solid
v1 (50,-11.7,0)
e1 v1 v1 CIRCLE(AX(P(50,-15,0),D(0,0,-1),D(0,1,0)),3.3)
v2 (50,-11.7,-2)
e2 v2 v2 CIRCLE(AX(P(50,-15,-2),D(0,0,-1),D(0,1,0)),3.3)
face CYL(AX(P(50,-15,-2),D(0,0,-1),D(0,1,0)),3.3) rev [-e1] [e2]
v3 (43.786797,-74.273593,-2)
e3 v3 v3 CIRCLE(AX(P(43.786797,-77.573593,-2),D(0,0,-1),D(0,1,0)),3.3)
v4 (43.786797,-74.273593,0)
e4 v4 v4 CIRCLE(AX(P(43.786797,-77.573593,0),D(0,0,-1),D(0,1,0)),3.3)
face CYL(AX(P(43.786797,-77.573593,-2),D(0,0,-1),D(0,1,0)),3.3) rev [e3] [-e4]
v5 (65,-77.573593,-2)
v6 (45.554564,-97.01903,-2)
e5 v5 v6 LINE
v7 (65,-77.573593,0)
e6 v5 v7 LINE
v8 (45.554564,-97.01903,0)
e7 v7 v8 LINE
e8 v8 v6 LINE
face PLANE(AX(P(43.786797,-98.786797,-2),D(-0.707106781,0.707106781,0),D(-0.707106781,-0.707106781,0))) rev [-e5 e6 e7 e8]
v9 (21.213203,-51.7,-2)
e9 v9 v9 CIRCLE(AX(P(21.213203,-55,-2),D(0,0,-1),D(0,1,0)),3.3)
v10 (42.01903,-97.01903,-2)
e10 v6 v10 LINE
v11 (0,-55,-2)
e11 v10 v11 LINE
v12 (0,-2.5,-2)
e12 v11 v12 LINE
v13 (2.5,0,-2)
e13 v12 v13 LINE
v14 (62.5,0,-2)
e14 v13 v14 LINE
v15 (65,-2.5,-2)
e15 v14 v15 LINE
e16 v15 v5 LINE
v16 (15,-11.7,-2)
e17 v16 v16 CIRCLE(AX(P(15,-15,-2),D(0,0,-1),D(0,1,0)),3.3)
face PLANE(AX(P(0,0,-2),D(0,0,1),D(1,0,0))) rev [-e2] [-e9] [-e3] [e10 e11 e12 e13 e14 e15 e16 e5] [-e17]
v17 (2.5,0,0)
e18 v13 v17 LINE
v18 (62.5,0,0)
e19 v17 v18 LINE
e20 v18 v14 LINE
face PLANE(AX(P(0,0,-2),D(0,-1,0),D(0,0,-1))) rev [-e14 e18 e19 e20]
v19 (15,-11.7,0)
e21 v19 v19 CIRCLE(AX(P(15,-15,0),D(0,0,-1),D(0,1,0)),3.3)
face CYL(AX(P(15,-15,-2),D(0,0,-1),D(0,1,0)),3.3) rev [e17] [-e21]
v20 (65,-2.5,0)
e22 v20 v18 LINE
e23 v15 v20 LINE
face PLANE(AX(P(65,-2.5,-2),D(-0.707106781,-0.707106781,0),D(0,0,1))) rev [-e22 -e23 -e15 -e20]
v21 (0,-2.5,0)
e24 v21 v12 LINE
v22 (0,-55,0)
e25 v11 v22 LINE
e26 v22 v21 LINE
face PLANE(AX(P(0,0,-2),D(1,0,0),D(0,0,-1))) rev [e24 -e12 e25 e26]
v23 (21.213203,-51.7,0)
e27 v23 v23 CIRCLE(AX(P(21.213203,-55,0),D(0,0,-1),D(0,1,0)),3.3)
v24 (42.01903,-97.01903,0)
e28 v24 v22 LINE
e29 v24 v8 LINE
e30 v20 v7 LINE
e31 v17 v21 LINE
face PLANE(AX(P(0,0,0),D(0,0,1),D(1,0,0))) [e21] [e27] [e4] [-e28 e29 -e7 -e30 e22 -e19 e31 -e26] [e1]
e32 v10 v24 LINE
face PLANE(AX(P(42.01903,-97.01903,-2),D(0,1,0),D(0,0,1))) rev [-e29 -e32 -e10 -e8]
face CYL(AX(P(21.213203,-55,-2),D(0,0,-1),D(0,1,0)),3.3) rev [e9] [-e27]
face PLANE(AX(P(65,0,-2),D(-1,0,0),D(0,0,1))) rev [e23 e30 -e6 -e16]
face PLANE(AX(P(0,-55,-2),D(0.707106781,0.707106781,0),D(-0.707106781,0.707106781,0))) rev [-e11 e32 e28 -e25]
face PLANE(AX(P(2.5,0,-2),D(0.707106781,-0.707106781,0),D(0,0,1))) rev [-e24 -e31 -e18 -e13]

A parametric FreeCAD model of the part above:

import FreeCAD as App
import Part
import Sketcher
from FreeCAD import Vector
Q = App.Units.Quantity


def edges_at(feature, points):
    """Names of the edges that pass closest to the given points."""
    edges = feature.Shape.Edges
    near = lambda p: min(range(len(edges)), key=lambda i: edges[i].distToShape(Part.Vertex(*p))[0])
    return sorted({f"Edge{near(p) + 1}" for p in points})

doc = App.newDocument("Part")
body = doc.addObject("PartDesign::Body", "Body")

# Sketch on XY plane
sketch1 = body.newObject("Sketcher::SketchObject", "Sketch")
sketch1.AttachmentSupport = (doc.getObject("XY_Plane"), [""])
sketch1.MapMode = "FlatFace"
sketch1.addGeometry([
    Part.LineSegment(Vector(0, 0, 0), Vector(65, 0, 0)),  # 0
    Part.LineSegment(Vector(65, 0, 0), Vector(65, -78, 0)),  # 1
    Part.LineSegment(Vector(65, -78, 0), Vector(44, -99, 0)),  # 2
    Part.LineSegment(Vector(44, -99, 0), Vector(0, -55, 0)),  # 3
    Part.LineSegment(Vector(0, -55, 0), Vector(0, 0, 0)),  # 4
], False)
sketch1.addConstraint([
    Sketcher.Constraint("Coincident", 0, 2, 1, 1),
    Sketcher.Constraint("Coincident", 1, 2, 2, 1),
    Sketcher.Constraint("Coincident", 2, 2, 3, 1),
    Sketcher.Constraint("Coincident", 3, 2, 4, 1),
    Sketcher.Constraint("Coincident", 4, 2, 0, 1),
    Sketcher.Constraint("Horizontal", 0),
    Sketcher.Constraint("Vertical", 1),
    Sketcher.Constraint("Vertical", 4),
    Sketcher.Constraint("Coincident", 4, 2, -1, 1),
    Sketcher.Constraint("Perpendicular", 2, 3),
    Sketcher.Constraint("DistanceX", 0, 1, 0, 2, Q("65 mm")),
    Sketcher.Constraint("DistanceY", 4, 1, 4, 2, Q("55 mm")),
    Sketcher.Constraint("Angle", 2, Q("-135 deg")),
    Sketcher.Constraint("Distance", 2, Q("30 mm")),
])
pad1 = body.newObject("PartDesign::Pad", "Pad")
pad1.Profile = sketch1
pad1.Length = 2
pad1.Reversed = True

# Sketch on XY plane
sketch2 = body.newObject("Sketcher::SketchObject", "Sketch001")
sketch2.AttachmentSupport = (doc.getObject("XY_Plane"), [""])
sketch2.MapMode = "FlatFace"
sketch2.AttachmentOffset = App.Placement(Vector(0, 0, -2), App.Rotation())
sketch2.addGeometry([
    Part.Circle(Vector(15, -15, 0), Vector(0, 0, 1), 3.3),
    Part.Circle(Vector(50, -15, 0), Vector(0, 0, 1), 3.3),
    Part.Circle(Vector(21.2, -55, 0), Vector(0, 0, 1), 3.3),
    Part.Circle(Vector(43.8, -77.6, 0), Vector(0, 0, 1), 3.3),
], False)
sketch2.addConstraint([
    Sketcher.Constraint("Equal", 0, 1),
    Sketcher.Constraint("Equal", 1, 2),
    Sketcher.Constraint("Equal", 2, 3),
    Sketcher.Constraint("Horizontal", 0, 3, 1, 3),
    Sketcher.Constraint("Diameter", 0, Q("6.6 mm")),
    Sketcher.Constraint("DistanceX", -1, 1, 0, 3, Q("15 mm")),
    Sketcher.Constraint("DistanceY", 0, 3, -1, 1, Q("15 mm")),
    Sketcher.Constraint("DistanceX", -1, 1, 1, 3, Q("50 mm")),
    Sketcher.Constraint("DistanceY", 2, 3, -1, 1, Q("55 mm")),
    Sketcher.Constraint("DistanceX", -1, 1, 2, 3, Q("21.213203 mm")),
    Sketcher.Constraint("DistanceX", -1, 1, 3, 3, Q("43.786797 mm")),
    Sketcher.Constraint("DistanceY", 3, 3, -1, 1, Q("77.573593 mm")),
])
doc.recompute()
hole = body.newObject("PartDesign::Hole", "Hole")
hole.Profile = sketch2
hole.ThreadType = "None"
hole.Diameter = 6.6
hole.DepthType = "ThroughAll"
hole.Reversed = True
doc.recompute()

chamfer = body.newObject("PartDesign::Chamfer", "Chamfer")
chamfer.Base = (hole, edges_at(hole, [(43.787, -98.787, -1), (65, 0, -1), (0, 0, -1)]))
chamfer.Size = 2.5

doc.recompute()
